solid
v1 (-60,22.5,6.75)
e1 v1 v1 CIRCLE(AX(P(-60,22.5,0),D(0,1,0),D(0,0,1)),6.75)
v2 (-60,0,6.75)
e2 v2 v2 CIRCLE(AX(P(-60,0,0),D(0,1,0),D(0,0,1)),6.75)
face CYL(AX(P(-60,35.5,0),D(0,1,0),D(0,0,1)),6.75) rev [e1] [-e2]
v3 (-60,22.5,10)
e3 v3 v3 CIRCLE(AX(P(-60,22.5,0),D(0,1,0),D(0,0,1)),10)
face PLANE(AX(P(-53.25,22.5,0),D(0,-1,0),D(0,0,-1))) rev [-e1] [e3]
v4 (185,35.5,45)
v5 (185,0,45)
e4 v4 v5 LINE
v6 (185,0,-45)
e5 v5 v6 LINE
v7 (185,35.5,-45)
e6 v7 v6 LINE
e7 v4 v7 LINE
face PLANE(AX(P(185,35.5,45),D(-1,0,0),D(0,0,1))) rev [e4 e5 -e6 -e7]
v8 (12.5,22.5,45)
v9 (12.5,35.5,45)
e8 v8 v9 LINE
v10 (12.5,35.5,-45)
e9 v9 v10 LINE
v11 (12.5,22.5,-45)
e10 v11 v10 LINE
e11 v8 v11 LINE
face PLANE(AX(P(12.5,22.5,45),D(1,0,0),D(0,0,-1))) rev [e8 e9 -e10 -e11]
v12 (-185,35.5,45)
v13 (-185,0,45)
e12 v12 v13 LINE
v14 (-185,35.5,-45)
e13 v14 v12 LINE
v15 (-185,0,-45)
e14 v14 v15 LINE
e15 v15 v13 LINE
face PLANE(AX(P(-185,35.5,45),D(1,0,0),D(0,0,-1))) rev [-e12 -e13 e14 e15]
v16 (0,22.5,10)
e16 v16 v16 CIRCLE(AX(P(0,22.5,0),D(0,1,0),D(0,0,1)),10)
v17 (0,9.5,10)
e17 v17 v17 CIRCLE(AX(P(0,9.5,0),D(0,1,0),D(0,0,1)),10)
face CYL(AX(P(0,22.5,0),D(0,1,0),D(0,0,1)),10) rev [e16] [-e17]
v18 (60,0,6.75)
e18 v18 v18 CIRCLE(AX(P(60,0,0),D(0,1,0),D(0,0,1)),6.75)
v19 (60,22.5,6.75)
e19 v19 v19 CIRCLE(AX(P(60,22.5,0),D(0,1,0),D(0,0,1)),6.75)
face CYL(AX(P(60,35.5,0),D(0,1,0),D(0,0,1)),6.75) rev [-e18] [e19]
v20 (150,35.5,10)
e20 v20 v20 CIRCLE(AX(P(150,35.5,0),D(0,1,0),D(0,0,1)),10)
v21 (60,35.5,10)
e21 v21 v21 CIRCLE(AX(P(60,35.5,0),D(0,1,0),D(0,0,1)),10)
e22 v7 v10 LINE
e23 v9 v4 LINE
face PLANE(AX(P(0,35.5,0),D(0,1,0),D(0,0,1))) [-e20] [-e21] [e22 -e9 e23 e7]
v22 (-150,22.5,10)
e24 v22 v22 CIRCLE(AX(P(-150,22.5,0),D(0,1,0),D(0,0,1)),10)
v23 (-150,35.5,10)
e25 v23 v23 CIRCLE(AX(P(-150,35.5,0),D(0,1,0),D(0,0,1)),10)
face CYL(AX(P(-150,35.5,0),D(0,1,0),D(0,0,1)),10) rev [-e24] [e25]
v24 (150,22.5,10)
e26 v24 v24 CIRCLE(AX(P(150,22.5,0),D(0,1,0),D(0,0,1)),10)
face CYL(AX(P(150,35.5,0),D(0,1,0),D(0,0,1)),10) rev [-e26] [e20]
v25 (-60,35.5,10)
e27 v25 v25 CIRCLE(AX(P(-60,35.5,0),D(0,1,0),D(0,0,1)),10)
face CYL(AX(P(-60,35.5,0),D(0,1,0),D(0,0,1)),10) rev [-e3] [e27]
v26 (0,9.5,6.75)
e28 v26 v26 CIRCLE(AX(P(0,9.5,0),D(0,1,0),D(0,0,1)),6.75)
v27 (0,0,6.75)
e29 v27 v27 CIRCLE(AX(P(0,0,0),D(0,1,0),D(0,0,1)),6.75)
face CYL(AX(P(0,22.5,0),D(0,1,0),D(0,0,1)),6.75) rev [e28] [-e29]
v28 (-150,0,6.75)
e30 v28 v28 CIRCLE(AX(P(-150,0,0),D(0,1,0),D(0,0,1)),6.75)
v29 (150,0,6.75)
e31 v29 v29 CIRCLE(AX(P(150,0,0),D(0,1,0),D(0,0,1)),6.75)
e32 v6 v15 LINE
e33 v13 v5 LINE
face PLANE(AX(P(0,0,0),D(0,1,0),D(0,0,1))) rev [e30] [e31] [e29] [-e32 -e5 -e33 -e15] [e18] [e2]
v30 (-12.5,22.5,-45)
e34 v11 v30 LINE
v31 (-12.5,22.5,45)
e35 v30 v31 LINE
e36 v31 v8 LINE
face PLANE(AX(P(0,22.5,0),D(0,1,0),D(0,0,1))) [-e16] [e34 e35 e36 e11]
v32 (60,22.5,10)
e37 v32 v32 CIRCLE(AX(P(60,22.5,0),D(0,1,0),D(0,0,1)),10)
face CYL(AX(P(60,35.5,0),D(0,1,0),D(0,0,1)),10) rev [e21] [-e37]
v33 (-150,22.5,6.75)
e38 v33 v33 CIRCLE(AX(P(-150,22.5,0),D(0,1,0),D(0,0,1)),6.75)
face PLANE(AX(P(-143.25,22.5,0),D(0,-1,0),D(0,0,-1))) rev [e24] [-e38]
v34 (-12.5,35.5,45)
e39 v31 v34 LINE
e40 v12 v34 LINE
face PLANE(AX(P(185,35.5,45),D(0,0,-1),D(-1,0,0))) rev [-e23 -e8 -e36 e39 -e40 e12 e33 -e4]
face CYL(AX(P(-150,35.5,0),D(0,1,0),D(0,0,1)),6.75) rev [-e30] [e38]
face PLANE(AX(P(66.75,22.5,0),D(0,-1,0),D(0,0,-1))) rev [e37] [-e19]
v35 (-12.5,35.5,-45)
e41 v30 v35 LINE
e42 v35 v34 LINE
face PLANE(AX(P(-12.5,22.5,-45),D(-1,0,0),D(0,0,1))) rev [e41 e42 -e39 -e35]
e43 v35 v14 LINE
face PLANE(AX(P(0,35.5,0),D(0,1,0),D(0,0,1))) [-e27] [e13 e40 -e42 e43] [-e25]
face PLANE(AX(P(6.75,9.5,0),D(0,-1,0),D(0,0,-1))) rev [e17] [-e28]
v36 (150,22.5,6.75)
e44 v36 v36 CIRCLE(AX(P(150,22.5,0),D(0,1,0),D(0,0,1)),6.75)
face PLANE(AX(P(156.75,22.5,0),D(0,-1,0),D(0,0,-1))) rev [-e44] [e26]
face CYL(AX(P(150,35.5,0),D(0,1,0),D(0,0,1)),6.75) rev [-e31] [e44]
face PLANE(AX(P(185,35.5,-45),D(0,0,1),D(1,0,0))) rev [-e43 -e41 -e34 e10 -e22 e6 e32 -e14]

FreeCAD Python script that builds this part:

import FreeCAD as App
import Part
import Sketcher
from FreeCAD import Vector


def add_polygon(sketch, points):
    """Adds a closed chain of lines whose ends are joined by coincident constraints."""
    first, n = sketch.GeometryCount, len(points)
    for a, b in zip(points, points[1:] + points[:1]):
        sketch.addGeometry(Part.LineSegment(App.Vector(*a, 0), App.Vector(*b, 0)), False)
    for i in range(n):
        sketch.addConstraint(Sketcher.Constraint("Coincident", first + i, 2, first + (i + 1) % n, 1))

doc = App.newDocument("Part")
body = doc.addObject("PartDesign::Body", "Body")

# Sketch on XZ plane
sketch1 = doc.addObject("Sketcher::SketchObject", "Sketch")
body.addObject(sketch1)
sketch1.AttachmentSupport = (doc.XZ_Plane, [""])
sketch1.MapMode = "FlatFace"
add_polygon(sketch1, [(-185, -45), (-185, 45), (185, 45), (185, -45)])  # lines 0-3
sketch1.addConstraint([
    Sketcher.Constraint("Vertical", 0),
    Sketcher.Constraint("Horizontal", 1),
    Sketcher.Constraint("Vertical", 2),
    Sketcher.Constraint("Horizontal", 3),
    Sketcher.Constraint("Symmetric", 0, 2, 2, 2, -1, 1),
    Sketcher.Constraint("DistanceX", 1, 1, 1, 2, 370.0),
    Sketcher.Constraint("DistanceY", 0, 1, 0, 2, 90.0),
])
pad1 = doc.addObject("PartDesign::Pad", "Pad")
body.addObject(pad1)
pad1.Profile = sketch1
pad1.Length = 35.5
pad1.Reversed = True

# Sketch on XZ plane
sketch2 = doc.addObject("Sketcher::SketchObject", "Sketch001")
body.addObject(sketch2)
sketch2.AttachmentSupport = (doc.XZ_Plane, [""])
sketch2.MapMode = "FlatFace"
sketch2.AttachmentOffset = App.Placement(Vector(0, 0, -35.5), App.Rotation())
add_polygon(sketch2, [(-12, -45), (-12, 45), (12, 45), (12, -45)])  # lines 0-3
sketch2.addConstraint([
    Sketcher.Constraint("Vertical", 0),
    Sketcher.Constraint("Horizontal", 1),
    Sketcher.Constraint("Vertical", 2),
    Sketcher.Constraint("Horizontal", 3),
    Sketcher.Constraint("Symmetric", 0, 2, 2, 2, -1, 1),
    Sketcher.Constraint("DistanceX", 1, 1, 1, 2, 25.0),
    Sketcher.Constraint("DistanceY", 0, 1, 0, 2, 90.0),
])
pocket1 = doc.addObject("PartDesign::Pocket", "Pocket")
body.addObject(pocket1)
pocket1.Profile = sketch2
pocket1.Length = 13
pocket1.Reversed = True

# Sketch on XZ plane
sketch3 = doc.addObject("Sketcher::SketchObject", "Sketch002")
body.addObject(sketch3)
sketch3.AttachmentSupport = (doc.XZ_Plane, [""])
sketch3.MapMode = "FlatFace"
sketch3.AttachmentOffset = App.Placement(Vector(0, 0, -35.5), App.Rotation())
sketch3.addGeometry(Part.Circle(Vector(-150, 0, 0), Vector(0, 0, 1), 7), False)
sketch3.addConstraint([
    Sketcher.Constraint("PointOnObject", 0, 3, -1),
    Sketcher.Constraint("Diameter", 0, 13.5),
    Sketcher.Constraint("DistanceX", 0, 3, -1, 1, 150.0),
])
doc.recompute()
hole = doc.addObject("PartDesign::Hole", "Hole")
body.addObject(hole)
hole.Profile = sketch3
hole.ThreadType = "None"
hole.Diameter = 13.5
hole.DepthType = "ThroughAll"
hole.HoleCutType = "Counterbore"
hole.HoleCutDiameter = 20
hole.HoleCutDepth = 13
hole.Reversed = True
doc.recompute()

linearpattern = doc.addObject("PartDesign::LinearPattern", "LinearPattern")
body.addObject(linearpattern)
linearpattern.Originals = [hole]
linearpattern.Direction = (doc.X_Axis, [""])
linearpattern.Mode = "offset"
linearpattern.Offset = 90
linearpattern.Occurrences = 2
body.Tip = linearpattern

# Sketch on XZ plane
sketch4 = doc.addObject("Sketcher::SketchObject", "Sketch003")
body.addObject(sketch4)
sketch4.AttachmentSupport = (doc.XZ_Plane, [""])
sketch4.MapMode = "FlatFace"
sketch4.AttachmentOffset = App.Placement(Vector(0, 0, -35.5), App.Rotation())
sketch4.addGeometry(Part.Circle(Vector(60, 0, 0), Vector(0, 0, 1), 7), False)
sketch4.addConstraint([
    Sketcher.Constraint("PointOnObject", 0, 3, -1),
    Sketcher.Constraint("Diameter", 0, 13.5),
    Sketcher.Constraint("DistanceX", -1, 1, 0, 3, 60.0),
])
doc.recompute()
hole2 = doc.addObject("PartDesign::Hole", "Hole001")
body.addObject(hole2)
hole2.Profile = sketch4
hole2.ThreadType = "None"
hole2.Diameter = 13.5
hole2.DepthType = "ThroughAll"
hole2.HoleCutType = "Counterbore"
hole2.HoleCutDiameter = 20
hole2.HoleCutDepth = 13
hole2.Reversed = True

# Sketch on XZ plane
sketch5 = doc.addObject("Sketcher::SketchObject", "Sketch004")
body.addObject(sketch5)
sketch5.AttachmentSupport = (doc.XZ_Plane, [""])
sketch5.MapMode = "FlatFace"
sketch5.AttachmentOffset = App.Placement(Vector(0, 0, -35.5), App.Rotation())
sketch5.addGeometry(Part.Circle(Vector(150, 0, 0), Vector(0, 0, 1), 7), False)
sketch5.addConstraint([
    Sketcher.Constraint("PointOnObject", 0, 3, -1),
    Sketcher.Constraint("Diameter", 0, 13.5),
    Sketcher.Constraint("DistanceX", -1, 1, 0, 3, 150.0),
])
doc.recompute()
hole3 = doc.addObject("PartDesign::Hole", "Hole002")
body.addObject(hole3)
hole3.Profile = sketch5
hole3.ThreadType = "None"
hole3.Diameter = 13.5
hole3.DepthType = "ThroughAll"
hole3.HoleCutType = "Counterbore"
hole3.HoleCutDiameter = 20
hole3.HoleCutDepth = 13
hole3.Reversed = True

# Sketch on XZ plane
sketch6 = doc.addObject("Sketcher::SketchObject", "Sketch005")
body.addObject(sketch6)
sketch6.AttachmentSupport = (doc.XZ_Plane, [""])
sketch6.MapMode = "FlatFace"
sketch6.AttachmentOffset = App.Placement(Vector(0, 0, -35.5), App.Rotation())
sketch6.addGeometry(Part.Circle(Vector(-60, 0, 0), Vector(0, 0, 1), 7), False)
sketch6.addConstraint([
    Sketcher.Constraint("PointOnObject", 0, 3, -1),
    Sketcher.Constraint("Diameter", 0, 13.5),
    Sketcher.Constraint("DistanceX", 0, 3, -1, 1, 60.0),
])
doc.recompute()
hole4 = doc.addObject("PartDesign::Hole", "Hole003")
body.addObject(hole4)
hole4.Profile = sketch6
hole4.ThreadType = "None"
hole4.Diameter = 13.5
hole4.DepthType = "ThroughAll"
hole4.HoleCutType = "Counterbore"
hole4.HoleCutDiameter = 20
hole4.HoleCutDepth = 13
hole4.Reversed = True

# Sketch on XZ plane
sketch7 = doc.addObject("Sketcher::SketchObject", "Sketch006")
body.addObject(sketch7)
sketch7.AttachmentSupport = (doc.XZ_Plane, [""])
sketch7.MapMode = "FlatFace"
sketch7.AttachmentOffset = App.Placement(Vector(0, 0, -22.5), App.Rotation())
sketch7.addGeometry(Part.Circle(Vector(0, 0, 0), Vector(0, 0, 1), 7), False)
sketch7.addConstraint([
    Sketcher.Constraint("Coincident", 0, 3, -1, 1),
    Sketcher.Constraint("Diameter", 0, 13.5),
])
doc.recompute()
hole5 = doc.addObject("PartDesign::Hole", "Hole004")
body.addObject(hole5)
hole5.Profile = sketch7
hole5.ThreadType = "None"
hole5.Diameter = 13.5
hole5.DepthType = "ThroughAll"
hole5.HoleCutType = "Counterbore"
hole5.HoleCutDiameter = 20
hole5.HoleCutDepth = 13
hole5.Reversed = True

doc.recompute()
